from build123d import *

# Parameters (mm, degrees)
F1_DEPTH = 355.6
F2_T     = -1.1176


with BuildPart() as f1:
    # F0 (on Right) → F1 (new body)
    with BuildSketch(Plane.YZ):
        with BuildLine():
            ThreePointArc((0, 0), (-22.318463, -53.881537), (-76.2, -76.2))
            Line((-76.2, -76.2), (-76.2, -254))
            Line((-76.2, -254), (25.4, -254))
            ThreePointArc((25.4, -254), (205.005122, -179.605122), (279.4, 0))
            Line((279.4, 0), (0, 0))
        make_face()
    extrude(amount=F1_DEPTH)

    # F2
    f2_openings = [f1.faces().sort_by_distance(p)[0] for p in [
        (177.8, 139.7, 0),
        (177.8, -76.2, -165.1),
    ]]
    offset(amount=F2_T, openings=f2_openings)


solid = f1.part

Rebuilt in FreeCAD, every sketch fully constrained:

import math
import FreeCAD as App
import Part
import Sketcher
Q = App.Units.Quantity


def faces_at(feature, points):
    """Names of the faces that lie closest to the given points."""
    faces = feature.Shape.Faces
    near = lambda p: min(range(len(faces)), key=lambda i: faces[i].distToShape(Part.Vertex(*p))[0])
    return sorted({f"Face{near(p) + 1}" for p in points})

doc = App.newDocument("Part")
body = doc.addObject("PartDesign::Body", "Body")

sketch1 = body.newObject("Sketcher::SketchObject", "Sketch")
sketch1.AttachmentSupport = (doc.getObject("YZ_Plane"), [""])
sketch1.MapMode = "FlatFace"
sketch1.addGeometry([
    Part.ArcOfCircle(Part.Circle(App.Vector(-76, 0, 0), App.Vector(0, 0, 1), 76), math.radians(-90), math.radians(0)),
    Part.LineSegment(App.Vector(-76, -76, 0), App.Vector(-76, -254, 0)),
    Part.LineSegment(App.Vector(-76, -254, 0), App.Vector(25, -254, 0)),
    Part.ArcOfCircle(Part.Circle(App.Vector(25, 0, 0), App.Vector(0, 0, 1), 254), math.radians(-90), math.radians(0)),
    Part.LineSegment(App.Vector(279, 0, 0), App.Vector(0, 0, 0)),
], False)
sketch1.addConstraint([
    Sketcher.Constraint("Coincident", 0, 1, 1, 1),
    Sketcher.Constraint("Coincident", 1, 2, 2, 1),
    Sketcher.Constraint("Tangent", 2, 2, 3, 1),
    Sketcher.Constraint("Coincident", 3, 2, 4, 1),
    Sketcher.Constraint("Coincident", 4, 2, 0, 2),
    Sketcher.Constraint("Vertical", 1),
    Sketcher.Constraint("Horizontal", 2),
    Sketcher.Constraint("Horizontal", 4),
    Sketcher.Constraint("Coincident", 4, 2, -1, 1),
    Sketcher.Constraint("PointOnObject", 0, 3, -1),
    Sketcher.Constraint("PointOnObject", 3, 3, -1),
    Sketcher.Constraint("Radius", 0, Q("3 in")),
    Sketcher.Constraint("Radius", 3, Q("10.0000001 in")),
    Sketcher.Constraint("DistanceX", 2, 1, 2, 2, Q("4 in")),
    Sketcher.Constraint("DistanceX", 4, 2, 4, 1, Q("11 in")),
])
pad1 = body.newObject("PartDesign::Pad", "Pad")
pad1.Profile = sketch1
pad1.Length = Q("14 in")
doc.recompute()

thickness = body.newObject("PartDesign::Thickness", "Thickness")
thickness.Base = (pad1, faces_at(pad1, [(177.8, 139.7, 0), (177.8, -76.2, -165.1)]))
thickness.Value = Q("0.044 in")
thickness.Reversed = True
thickness.Join = "Arc"

doc.recompute()
